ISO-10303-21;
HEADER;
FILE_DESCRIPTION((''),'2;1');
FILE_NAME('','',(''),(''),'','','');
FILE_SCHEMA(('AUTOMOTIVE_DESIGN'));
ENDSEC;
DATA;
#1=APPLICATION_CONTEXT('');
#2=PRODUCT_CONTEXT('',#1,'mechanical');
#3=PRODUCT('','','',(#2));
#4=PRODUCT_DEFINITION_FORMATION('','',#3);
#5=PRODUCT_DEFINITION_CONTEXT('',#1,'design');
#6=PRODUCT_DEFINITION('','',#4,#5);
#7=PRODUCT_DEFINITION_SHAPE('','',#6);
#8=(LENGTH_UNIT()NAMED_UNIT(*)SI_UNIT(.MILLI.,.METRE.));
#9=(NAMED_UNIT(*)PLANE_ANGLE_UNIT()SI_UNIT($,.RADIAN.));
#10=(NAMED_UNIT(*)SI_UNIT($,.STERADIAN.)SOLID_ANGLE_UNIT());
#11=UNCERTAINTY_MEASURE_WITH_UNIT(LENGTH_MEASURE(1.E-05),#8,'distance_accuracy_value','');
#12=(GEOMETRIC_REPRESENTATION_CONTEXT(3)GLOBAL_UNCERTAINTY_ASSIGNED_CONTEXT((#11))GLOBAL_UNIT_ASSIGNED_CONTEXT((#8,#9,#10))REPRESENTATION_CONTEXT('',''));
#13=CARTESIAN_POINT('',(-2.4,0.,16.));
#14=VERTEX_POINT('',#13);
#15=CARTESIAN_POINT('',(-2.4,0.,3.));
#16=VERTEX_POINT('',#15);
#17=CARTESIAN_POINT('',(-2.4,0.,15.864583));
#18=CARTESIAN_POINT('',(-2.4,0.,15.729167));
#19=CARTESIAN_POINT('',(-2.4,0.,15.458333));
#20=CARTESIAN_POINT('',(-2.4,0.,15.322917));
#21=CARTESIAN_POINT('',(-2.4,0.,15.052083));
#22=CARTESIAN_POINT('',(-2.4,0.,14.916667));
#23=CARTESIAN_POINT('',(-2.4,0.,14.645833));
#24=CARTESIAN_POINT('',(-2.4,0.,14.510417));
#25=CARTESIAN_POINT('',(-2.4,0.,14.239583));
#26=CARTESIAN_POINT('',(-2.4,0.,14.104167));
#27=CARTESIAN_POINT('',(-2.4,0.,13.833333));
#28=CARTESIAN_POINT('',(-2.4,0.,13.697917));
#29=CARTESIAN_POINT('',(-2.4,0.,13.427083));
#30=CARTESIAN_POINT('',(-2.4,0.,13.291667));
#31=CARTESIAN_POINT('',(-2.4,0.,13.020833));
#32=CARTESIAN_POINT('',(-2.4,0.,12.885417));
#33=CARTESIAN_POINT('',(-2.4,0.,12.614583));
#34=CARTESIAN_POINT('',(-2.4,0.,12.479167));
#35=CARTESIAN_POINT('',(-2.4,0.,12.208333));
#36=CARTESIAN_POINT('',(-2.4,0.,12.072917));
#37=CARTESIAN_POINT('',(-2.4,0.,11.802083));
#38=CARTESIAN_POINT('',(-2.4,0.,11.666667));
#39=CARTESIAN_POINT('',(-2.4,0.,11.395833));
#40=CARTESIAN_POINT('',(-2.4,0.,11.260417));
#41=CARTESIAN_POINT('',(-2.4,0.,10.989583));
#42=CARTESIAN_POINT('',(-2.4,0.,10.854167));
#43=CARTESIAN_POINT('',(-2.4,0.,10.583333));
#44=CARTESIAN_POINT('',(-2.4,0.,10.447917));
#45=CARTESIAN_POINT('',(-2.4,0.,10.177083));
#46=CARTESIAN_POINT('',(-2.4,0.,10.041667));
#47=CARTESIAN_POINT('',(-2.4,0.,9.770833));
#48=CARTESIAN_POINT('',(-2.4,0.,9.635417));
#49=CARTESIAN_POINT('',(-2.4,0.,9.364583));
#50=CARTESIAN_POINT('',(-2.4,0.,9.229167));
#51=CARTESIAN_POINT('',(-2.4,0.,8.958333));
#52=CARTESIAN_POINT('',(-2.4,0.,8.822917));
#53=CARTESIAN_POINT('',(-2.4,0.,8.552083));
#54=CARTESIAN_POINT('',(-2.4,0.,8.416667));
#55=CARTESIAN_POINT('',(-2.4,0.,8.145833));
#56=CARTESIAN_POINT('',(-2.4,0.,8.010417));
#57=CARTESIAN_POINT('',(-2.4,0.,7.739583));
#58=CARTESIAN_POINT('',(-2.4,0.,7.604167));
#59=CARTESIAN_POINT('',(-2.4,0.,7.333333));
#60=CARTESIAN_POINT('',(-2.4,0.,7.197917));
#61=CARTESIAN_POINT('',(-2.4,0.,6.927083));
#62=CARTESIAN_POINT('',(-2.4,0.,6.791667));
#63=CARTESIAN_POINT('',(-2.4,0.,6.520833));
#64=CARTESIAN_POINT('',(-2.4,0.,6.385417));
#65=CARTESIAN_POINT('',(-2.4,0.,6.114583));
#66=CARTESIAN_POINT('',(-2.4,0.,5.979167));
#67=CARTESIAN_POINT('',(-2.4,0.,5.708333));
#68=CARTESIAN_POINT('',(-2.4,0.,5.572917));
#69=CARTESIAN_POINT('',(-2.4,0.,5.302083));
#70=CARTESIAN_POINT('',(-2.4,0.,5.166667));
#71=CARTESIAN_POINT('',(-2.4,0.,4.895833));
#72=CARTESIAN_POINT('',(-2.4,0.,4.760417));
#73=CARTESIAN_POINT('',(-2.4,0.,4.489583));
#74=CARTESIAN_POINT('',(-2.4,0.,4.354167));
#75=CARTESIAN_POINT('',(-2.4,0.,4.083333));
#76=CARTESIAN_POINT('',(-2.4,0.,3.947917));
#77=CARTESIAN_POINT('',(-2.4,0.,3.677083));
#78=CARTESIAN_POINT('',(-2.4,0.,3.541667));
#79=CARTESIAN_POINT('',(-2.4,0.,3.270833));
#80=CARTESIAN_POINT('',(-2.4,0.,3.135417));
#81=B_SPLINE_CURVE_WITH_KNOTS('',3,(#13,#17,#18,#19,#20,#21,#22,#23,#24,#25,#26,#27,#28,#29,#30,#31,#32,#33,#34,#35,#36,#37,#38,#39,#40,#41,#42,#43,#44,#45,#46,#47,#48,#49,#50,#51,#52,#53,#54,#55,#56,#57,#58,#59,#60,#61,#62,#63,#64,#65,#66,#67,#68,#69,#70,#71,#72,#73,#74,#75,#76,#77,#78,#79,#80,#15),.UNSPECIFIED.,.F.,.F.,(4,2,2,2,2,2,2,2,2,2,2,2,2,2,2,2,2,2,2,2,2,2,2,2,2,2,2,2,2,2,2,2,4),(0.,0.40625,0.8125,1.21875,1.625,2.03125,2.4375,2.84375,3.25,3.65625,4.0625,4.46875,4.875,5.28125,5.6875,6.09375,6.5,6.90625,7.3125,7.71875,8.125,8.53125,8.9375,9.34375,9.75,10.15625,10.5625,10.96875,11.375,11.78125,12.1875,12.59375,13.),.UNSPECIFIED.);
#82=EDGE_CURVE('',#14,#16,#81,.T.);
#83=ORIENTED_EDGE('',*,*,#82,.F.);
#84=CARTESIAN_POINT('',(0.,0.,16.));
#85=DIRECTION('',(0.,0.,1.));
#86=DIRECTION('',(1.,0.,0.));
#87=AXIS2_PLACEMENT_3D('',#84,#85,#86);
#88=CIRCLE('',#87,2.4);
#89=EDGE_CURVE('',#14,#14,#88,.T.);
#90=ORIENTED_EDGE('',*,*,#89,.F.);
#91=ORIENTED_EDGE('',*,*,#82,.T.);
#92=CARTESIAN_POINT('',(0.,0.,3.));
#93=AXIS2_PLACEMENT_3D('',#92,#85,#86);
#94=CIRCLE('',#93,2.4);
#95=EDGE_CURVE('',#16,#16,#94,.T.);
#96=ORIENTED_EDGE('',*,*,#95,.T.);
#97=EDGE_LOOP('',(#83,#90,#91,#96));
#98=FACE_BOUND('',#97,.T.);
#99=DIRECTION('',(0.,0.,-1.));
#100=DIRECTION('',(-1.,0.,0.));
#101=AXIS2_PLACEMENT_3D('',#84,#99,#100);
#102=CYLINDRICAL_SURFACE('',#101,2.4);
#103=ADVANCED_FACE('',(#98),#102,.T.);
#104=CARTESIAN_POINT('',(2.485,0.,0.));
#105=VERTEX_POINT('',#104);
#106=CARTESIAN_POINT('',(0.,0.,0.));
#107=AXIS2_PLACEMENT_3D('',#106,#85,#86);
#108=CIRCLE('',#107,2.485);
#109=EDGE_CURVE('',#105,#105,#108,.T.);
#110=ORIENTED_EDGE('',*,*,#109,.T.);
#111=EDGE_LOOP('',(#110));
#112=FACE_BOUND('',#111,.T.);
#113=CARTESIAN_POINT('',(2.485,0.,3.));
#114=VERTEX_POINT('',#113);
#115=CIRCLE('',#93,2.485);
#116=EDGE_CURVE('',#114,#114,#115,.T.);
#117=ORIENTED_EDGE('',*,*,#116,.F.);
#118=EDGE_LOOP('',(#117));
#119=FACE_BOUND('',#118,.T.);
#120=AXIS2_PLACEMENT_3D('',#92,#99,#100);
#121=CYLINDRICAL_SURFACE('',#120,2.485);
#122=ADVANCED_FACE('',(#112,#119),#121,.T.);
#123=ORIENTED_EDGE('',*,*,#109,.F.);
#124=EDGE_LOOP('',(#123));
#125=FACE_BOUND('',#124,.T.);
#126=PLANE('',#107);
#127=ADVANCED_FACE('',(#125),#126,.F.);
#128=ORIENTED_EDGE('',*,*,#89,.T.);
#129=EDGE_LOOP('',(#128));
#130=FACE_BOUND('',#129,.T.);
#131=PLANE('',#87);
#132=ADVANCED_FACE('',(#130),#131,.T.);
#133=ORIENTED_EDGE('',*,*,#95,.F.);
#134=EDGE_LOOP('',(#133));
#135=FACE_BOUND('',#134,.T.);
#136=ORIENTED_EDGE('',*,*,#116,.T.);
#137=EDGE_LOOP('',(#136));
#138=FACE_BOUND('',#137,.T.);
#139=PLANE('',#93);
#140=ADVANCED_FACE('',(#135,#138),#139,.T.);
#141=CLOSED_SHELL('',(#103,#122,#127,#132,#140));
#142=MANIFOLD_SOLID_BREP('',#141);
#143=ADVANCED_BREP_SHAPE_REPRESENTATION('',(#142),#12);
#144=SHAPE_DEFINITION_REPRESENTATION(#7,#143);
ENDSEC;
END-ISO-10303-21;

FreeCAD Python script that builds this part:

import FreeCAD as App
import Part
import Sketcher
Q = App.Units.Quantity

doc = App.newDocument("Part")
params = doc.addObject("Spreadsheet::Sheet", "Params")
for row, (alias, value) in enumerate([
    ("sketch1_diameter", "4.97 mm"),
    ("pad1_length", "3 mm"),
    ("sketch2_diameter", "4.8 mm"),
    ("pad2_length", "13 mm"),
], start=1):
    params.set(f"A{row}", alias)
    params.set(f"B{row}", "=" + value)
    params.setAlias(f"B{row}", alias)

body = doc.addObject("PartDesign::Body", "Body")

# Sketch on XY plane
sketch1 = doc.addObject("Sketcher::SketchObject", "Sketch")
body.addObject(sketch1)
sketch1.AttachmentSupport = (doc.XY_Plane, [""])
sketch1.MapMode = "FlatFace"
sketch1.addGeometry(Part.Circle(App.Vector(0, 0, 0), App.Vector(0, 0, 1), 2.5), False)
sketch1.addConstraint(Sketcher.Constraint("Coincident", 0, 3, -1, 1))
sketch1.addConstraint(Sketcher.Constraint("Diameter", 0, Q("4.97 mm")))
sketch1.setExpression("Constraints[1]", "Params.sketch1_diameter")
pad1 = doc.addObject("PartDesign::Pad", "Pad")
body.addObject(pad1)
pad1.Profile = sketch1
pad1.setExpression("Length", "Params.pad1_length")

# Sketch on XY plane
sketch2 = doc.addObject("Sketcher::SketchObject", "Sketch001")
body.addObject(sketch2)
sketch2.AttachmentSupport = (doc.XY_Plane, [""])
sketch2.MapMode = "FlatFace"
sketch2.AttachmentOffset = App.Placement(App.Vector(0, 0, 3), App.Rotation())
sketch2.addGeometry(Part.Circle(App.Vector(0, 0, 0), App.Vector(0, 0, 1), 2.4), False)
sketch2.addConstraint(Sketcher.Constraint("Coincident", 0, 3, -1, 1))
sketch2.addConstraint(Sketcher.Constraint("Diameter", 0, Q("4.8 mm")))
sketch2.setExpression("Constraints[1]", "Params.sketch2_diameter")
pad2 = doc.addObject("PartDesign::Pad", "Pad001")
body.addObject(pad2)
pad2.Profile = sketch2
pad2.setExpression("Length", "Params.pad2_length")

doc.recompute()
